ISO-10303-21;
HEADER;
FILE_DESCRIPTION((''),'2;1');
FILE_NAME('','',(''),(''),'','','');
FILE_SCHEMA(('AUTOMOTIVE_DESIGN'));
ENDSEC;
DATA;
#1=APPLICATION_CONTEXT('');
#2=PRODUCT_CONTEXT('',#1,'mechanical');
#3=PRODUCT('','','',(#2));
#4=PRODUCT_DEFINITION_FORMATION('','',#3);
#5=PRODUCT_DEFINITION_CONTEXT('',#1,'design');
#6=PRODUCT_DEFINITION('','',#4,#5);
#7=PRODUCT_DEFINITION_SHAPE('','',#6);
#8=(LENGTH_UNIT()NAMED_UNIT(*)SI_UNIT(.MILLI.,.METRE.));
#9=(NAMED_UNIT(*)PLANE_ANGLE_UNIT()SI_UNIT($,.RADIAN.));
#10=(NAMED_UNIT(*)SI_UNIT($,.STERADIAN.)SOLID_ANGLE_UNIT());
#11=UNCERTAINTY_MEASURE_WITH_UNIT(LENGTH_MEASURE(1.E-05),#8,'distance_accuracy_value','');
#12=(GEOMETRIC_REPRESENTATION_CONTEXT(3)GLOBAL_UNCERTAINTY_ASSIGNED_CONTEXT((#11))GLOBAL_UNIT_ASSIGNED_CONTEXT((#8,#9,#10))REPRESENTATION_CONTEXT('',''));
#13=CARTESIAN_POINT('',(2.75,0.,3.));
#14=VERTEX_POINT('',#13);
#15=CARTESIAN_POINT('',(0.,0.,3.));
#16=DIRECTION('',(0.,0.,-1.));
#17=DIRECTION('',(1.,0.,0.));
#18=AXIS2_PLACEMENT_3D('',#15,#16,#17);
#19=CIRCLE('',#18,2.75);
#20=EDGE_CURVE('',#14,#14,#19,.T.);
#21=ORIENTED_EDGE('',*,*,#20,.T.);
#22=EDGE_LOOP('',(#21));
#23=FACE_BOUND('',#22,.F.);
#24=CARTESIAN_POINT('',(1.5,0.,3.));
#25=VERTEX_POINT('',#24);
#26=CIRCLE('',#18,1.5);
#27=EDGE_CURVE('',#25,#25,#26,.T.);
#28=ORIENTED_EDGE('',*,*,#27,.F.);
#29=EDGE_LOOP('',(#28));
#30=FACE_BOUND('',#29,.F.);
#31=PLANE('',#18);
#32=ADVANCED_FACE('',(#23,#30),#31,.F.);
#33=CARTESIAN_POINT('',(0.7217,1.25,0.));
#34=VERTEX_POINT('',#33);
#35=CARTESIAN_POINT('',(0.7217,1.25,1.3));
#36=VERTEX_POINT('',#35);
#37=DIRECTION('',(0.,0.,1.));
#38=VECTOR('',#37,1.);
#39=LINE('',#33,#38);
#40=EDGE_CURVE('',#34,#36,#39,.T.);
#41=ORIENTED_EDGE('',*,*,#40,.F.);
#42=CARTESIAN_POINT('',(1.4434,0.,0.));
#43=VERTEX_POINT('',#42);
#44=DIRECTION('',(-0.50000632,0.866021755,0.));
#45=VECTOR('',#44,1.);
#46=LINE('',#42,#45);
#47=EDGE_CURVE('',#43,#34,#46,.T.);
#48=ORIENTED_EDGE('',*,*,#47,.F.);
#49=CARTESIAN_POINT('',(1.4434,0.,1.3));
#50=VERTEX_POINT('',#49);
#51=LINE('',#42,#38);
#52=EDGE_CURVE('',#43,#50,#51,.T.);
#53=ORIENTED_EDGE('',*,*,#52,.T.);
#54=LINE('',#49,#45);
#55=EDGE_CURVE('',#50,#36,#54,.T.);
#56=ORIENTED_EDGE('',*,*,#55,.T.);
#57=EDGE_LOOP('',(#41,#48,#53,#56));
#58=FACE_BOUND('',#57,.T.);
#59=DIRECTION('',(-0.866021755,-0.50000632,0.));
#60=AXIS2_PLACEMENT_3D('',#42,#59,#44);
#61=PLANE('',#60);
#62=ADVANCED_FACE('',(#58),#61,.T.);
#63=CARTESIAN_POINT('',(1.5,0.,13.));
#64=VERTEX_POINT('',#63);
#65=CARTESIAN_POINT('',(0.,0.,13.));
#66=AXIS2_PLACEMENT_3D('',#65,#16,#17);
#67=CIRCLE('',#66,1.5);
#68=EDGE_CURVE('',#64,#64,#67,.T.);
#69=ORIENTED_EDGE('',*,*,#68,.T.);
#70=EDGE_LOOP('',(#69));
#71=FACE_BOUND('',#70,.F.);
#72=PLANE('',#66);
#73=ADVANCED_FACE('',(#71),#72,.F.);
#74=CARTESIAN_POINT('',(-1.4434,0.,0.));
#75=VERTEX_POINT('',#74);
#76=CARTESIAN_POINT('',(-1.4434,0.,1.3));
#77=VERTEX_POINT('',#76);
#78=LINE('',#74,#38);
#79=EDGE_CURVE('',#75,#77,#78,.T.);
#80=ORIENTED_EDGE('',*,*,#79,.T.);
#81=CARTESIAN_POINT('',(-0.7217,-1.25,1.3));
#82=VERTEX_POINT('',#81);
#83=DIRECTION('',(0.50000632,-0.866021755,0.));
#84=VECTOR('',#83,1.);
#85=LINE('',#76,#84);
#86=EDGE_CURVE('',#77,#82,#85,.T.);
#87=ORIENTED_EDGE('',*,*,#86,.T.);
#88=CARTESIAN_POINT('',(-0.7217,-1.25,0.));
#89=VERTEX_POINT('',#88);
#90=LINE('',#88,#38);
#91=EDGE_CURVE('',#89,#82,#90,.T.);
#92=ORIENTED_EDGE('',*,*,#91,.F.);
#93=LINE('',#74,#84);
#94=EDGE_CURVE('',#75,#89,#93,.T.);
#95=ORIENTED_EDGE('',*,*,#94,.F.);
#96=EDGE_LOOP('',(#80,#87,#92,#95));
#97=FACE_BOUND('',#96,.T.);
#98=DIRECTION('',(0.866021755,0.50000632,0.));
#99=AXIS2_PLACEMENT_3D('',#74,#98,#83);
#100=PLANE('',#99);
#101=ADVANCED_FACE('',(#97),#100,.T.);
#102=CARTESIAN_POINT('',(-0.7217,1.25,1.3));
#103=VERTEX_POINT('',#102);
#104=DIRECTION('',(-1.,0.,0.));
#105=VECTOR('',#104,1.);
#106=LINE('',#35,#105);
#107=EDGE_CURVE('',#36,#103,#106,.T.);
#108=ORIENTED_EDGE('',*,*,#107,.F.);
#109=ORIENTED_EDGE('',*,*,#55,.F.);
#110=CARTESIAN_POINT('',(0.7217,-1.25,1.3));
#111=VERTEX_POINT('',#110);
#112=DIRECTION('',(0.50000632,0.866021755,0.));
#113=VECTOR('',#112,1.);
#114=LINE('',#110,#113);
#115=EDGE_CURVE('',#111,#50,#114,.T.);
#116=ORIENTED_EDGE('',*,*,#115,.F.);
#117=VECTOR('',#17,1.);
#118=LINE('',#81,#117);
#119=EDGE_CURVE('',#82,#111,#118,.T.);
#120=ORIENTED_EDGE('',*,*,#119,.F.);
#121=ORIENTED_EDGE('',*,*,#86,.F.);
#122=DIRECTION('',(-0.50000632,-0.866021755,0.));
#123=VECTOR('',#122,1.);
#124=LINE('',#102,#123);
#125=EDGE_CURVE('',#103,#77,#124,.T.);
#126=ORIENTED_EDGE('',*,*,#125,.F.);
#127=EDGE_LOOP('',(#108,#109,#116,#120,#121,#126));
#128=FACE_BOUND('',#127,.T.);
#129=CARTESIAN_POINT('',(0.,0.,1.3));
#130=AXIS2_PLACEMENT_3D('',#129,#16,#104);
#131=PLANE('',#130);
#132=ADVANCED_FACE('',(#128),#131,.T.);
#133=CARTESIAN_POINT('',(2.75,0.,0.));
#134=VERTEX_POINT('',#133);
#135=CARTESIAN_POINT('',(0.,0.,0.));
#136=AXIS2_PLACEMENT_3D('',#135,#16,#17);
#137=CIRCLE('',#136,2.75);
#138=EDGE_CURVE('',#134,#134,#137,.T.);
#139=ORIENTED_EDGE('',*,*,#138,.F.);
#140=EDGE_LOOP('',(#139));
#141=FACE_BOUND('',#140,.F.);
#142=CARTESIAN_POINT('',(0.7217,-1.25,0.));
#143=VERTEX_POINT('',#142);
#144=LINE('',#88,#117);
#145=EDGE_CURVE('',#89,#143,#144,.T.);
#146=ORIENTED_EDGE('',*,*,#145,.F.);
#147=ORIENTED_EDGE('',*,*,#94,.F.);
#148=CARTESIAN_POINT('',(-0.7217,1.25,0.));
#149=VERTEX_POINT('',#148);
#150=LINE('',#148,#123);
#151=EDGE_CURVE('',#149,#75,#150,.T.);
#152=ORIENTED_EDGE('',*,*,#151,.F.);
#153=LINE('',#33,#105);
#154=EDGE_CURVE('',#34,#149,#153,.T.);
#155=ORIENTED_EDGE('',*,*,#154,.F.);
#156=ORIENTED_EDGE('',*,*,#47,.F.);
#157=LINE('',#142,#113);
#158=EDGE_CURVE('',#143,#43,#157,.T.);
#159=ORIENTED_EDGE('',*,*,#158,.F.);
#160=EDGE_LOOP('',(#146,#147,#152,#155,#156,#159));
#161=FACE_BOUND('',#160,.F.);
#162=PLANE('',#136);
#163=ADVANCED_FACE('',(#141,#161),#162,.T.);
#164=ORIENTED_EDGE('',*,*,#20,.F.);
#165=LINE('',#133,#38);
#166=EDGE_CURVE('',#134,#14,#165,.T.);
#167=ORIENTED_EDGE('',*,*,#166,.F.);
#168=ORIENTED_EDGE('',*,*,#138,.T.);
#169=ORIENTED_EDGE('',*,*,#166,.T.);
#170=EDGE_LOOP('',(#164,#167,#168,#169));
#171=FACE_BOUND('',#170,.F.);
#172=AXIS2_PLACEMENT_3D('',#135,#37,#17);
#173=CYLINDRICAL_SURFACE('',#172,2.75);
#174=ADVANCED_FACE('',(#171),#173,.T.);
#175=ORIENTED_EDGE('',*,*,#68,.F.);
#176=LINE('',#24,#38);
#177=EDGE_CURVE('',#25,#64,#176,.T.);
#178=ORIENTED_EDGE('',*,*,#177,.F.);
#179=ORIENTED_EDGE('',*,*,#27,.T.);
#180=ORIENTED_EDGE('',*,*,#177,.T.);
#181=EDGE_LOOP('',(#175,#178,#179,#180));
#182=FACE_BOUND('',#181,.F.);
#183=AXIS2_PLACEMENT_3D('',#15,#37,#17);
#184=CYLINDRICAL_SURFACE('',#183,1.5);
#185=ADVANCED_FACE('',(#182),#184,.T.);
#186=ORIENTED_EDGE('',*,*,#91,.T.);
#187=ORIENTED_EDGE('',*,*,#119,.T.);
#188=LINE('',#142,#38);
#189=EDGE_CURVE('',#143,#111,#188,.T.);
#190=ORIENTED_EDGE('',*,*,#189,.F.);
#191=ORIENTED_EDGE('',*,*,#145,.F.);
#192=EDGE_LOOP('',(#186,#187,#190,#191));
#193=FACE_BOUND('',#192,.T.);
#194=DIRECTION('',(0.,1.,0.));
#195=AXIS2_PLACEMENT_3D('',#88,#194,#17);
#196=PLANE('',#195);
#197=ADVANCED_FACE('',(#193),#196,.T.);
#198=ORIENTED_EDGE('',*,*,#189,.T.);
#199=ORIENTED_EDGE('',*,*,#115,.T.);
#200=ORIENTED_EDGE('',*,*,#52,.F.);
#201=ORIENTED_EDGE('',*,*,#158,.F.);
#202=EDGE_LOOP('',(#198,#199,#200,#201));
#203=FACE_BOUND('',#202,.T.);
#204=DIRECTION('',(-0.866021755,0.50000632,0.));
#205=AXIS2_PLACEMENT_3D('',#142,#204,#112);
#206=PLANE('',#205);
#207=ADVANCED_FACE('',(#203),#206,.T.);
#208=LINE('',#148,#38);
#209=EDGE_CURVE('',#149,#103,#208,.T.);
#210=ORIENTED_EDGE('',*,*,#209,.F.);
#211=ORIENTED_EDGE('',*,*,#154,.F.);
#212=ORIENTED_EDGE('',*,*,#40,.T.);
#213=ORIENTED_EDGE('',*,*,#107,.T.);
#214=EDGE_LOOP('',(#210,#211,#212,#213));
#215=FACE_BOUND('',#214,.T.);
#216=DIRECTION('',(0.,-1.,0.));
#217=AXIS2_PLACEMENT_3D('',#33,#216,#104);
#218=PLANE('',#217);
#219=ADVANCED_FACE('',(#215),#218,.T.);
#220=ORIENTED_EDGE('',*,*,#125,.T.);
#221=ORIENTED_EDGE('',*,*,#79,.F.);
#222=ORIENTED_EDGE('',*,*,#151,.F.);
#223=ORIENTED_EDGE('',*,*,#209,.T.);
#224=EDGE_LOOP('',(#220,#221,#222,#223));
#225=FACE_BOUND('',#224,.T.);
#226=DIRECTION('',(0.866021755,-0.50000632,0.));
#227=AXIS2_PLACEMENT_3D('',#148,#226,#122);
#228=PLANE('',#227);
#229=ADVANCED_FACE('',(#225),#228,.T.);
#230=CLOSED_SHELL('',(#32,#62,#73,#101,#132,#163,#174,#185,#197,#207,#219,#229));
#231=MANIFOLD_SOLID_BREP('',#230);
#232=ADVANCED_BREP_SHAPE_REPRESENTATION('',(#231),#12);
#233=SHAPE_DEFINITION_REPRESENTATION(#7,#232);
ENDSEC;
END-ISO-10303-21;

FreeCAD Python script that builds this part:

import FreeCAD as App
import Part
import Sketcher
from FreeCAD import Vector
Q = App.Units.Quantity

doc = App.newDocument("Part")
body = doc.addObject("PartDesign::Body", "Body")

# Sketch on XZ plane
sketch1 = body.newObject("Sketcher::SketchObject", "Sketch")
sketch1.AttachmentSupport = (doc.getObject("XZ_Plane"), [""])
sketch1.MapMode = "FlatFace"
sketch1.addGeometry([
    Part.LineSegment(Vector(2.8, 0, 0), Vector(0, 0, 0)),  # 0
    Part.LineSegment(Vector(0, 0, 0), Vector(0, 13, 0)),  # 1
    Part.LineSegment(Vector(0, 13, 0), Vector(1.5, 13, 0)),  # 2
    Part.LineSegment(Vector(1.5, 13, 0), Vector(1.5, 3, 0)),  # 3
    Part.LineSegment(Vector(1.5, 3, 0), Vector(2.8, 3, 0)),  # 4
    Part.LineSegment(Vector(2.8, 3, 0), Vector(2.8, 0, 0)),  # 5
], False)
sketch1.addConstraint([
    Sketcher.Constraint("Coincident", 0, 2, 1, 1),
    Sketcher.Constraint("Coincident", 1, 2, 2, 1),
    Sketcher.Constraint("Coincident", 2, 2, 3, 1),
    Sketcher.Constraint("Coincident", 3, 2, 4, 1),
    Sketcher.Constraint("Coincident", 4, 2, 5, 1),
    Sketcher.Constraint("Coincident", 5, 2, 0, 1),
    Sketcher.Constraint("Horizontal", 0),
    Sketcher.Constraint("Vertical", 1),
    Sketcher.Constraint("Horizontal", 2),
    Sketcher.Constraint("Vertical", 3),
    Sketcher.Constraint("Horizontal", 4),
    Sketcher.Constraint("Vertical", 5),
    Sketcher.Constraint("Coincident", 0, 2, -1, 1),
    Sketcher.Constraint("DistanceY", 3, 2, 3, 1, Q("10 mm")),
    Sketcher.Constraint("DistanceY", 5, 2, 5, 1, Q("3 mm")),
    Sketcher.Constraint("DistanceX", 2, 1, 2, 2, Q("1.5 mm")),
    Sketcher.Constraint("DistanceX", 0, 2, 0, 1, Q("2.75 mm")),
])
revolution = body.newObject("PartDesign::Revolution", "Revolution")
revolution.Profile = sketch1
revolution.ReferenceAxis = (sketch1, ["V_Axis"])
revolution.Angle = 360

# Sketch on XY plane
sketch2 = body.newObject("Sketcher::SketchObject", "Sketch001")
sketch2.AttachmentSupport = (doc.getObject("XY_Plane"), [""])
sketch2.MapMode = "FlatFace"
sketch2.addGeometry([
    Part.LineSegment(Vector(-1.4, 0, 0), Vector(-0.7, 1.2, 0)),  # 0
    Part.LineSegment(Vector(-0.7, 1.2, 0), Vector(0.7, 1.2, 0)),  # 1
    Part.LineSegment(Vector(0.7, 1.2, 0), Vector(1.4, 0, 0)),  # 2
    Part.LineSegment(Vector(1.4, 0, 0), Vector(0.7, -1.2, 0)),  # 3
    Part.LineSegment(Vector(0.7, -1.2, 0), Vector(-0.7, -1.2, 0)),  # 4
    Part.LineSegment(Vector(-0.7, -1.2, 0), Vector(-1.4, 0, 0)),  # 5
], False)
sketch2.addConstraint([
    Sketcher.Constraint("Coincident", 0, 2, 1, 1),
    Sketcher.Constraint("Coincident", 1, 2, 2, 1),
    Sketcher.Constraint("Coincident", 2, 2, 3, 1),
    Sketcher.Constraint("Coincident", 3, 2, 4, 1),
    Sketcher.Constraint("Coincident", 4, 2, 5, 1),
    Sketcher.Constraint("Coincident", 5, 2, 0, 1),
    Sketcher.Constraint("Horizontal", 1),
    Sketcher.Constraint("Horizontal", 4),
    Sketcher.Constraint("Symmetric", 0, 2, 3, 2, -1, 1),
    Sketcher.Constraint("Symmetric", 2, 2, 5, 2, -1, 1),
    Sketcher.Constraint("PointOnObject", 2, 2, -1),
    Sketcher.Constraint("Parallel", 2, 5),
    Sketcher.Constraint("Vertical", 1, 2, 3, 2),
    Sketcher.Constraint("DistanceY", 3, 2, 1, 2, Q("2.5 mm")),
    Sketcher.Constraint("Angle", 0, Q("59.9996 deg")),
    Sketcher.Constraint("DistanceX", 1, 1, 1, 2, Q("1.4434 mm")),
])
pocket1 = body.newObject("PartDesign::Pocket", "Pocket")
pocket1.Profile = sketch2
pocket1.Length = 1.3
pocket1.Reversed = True

doc.recompute()
